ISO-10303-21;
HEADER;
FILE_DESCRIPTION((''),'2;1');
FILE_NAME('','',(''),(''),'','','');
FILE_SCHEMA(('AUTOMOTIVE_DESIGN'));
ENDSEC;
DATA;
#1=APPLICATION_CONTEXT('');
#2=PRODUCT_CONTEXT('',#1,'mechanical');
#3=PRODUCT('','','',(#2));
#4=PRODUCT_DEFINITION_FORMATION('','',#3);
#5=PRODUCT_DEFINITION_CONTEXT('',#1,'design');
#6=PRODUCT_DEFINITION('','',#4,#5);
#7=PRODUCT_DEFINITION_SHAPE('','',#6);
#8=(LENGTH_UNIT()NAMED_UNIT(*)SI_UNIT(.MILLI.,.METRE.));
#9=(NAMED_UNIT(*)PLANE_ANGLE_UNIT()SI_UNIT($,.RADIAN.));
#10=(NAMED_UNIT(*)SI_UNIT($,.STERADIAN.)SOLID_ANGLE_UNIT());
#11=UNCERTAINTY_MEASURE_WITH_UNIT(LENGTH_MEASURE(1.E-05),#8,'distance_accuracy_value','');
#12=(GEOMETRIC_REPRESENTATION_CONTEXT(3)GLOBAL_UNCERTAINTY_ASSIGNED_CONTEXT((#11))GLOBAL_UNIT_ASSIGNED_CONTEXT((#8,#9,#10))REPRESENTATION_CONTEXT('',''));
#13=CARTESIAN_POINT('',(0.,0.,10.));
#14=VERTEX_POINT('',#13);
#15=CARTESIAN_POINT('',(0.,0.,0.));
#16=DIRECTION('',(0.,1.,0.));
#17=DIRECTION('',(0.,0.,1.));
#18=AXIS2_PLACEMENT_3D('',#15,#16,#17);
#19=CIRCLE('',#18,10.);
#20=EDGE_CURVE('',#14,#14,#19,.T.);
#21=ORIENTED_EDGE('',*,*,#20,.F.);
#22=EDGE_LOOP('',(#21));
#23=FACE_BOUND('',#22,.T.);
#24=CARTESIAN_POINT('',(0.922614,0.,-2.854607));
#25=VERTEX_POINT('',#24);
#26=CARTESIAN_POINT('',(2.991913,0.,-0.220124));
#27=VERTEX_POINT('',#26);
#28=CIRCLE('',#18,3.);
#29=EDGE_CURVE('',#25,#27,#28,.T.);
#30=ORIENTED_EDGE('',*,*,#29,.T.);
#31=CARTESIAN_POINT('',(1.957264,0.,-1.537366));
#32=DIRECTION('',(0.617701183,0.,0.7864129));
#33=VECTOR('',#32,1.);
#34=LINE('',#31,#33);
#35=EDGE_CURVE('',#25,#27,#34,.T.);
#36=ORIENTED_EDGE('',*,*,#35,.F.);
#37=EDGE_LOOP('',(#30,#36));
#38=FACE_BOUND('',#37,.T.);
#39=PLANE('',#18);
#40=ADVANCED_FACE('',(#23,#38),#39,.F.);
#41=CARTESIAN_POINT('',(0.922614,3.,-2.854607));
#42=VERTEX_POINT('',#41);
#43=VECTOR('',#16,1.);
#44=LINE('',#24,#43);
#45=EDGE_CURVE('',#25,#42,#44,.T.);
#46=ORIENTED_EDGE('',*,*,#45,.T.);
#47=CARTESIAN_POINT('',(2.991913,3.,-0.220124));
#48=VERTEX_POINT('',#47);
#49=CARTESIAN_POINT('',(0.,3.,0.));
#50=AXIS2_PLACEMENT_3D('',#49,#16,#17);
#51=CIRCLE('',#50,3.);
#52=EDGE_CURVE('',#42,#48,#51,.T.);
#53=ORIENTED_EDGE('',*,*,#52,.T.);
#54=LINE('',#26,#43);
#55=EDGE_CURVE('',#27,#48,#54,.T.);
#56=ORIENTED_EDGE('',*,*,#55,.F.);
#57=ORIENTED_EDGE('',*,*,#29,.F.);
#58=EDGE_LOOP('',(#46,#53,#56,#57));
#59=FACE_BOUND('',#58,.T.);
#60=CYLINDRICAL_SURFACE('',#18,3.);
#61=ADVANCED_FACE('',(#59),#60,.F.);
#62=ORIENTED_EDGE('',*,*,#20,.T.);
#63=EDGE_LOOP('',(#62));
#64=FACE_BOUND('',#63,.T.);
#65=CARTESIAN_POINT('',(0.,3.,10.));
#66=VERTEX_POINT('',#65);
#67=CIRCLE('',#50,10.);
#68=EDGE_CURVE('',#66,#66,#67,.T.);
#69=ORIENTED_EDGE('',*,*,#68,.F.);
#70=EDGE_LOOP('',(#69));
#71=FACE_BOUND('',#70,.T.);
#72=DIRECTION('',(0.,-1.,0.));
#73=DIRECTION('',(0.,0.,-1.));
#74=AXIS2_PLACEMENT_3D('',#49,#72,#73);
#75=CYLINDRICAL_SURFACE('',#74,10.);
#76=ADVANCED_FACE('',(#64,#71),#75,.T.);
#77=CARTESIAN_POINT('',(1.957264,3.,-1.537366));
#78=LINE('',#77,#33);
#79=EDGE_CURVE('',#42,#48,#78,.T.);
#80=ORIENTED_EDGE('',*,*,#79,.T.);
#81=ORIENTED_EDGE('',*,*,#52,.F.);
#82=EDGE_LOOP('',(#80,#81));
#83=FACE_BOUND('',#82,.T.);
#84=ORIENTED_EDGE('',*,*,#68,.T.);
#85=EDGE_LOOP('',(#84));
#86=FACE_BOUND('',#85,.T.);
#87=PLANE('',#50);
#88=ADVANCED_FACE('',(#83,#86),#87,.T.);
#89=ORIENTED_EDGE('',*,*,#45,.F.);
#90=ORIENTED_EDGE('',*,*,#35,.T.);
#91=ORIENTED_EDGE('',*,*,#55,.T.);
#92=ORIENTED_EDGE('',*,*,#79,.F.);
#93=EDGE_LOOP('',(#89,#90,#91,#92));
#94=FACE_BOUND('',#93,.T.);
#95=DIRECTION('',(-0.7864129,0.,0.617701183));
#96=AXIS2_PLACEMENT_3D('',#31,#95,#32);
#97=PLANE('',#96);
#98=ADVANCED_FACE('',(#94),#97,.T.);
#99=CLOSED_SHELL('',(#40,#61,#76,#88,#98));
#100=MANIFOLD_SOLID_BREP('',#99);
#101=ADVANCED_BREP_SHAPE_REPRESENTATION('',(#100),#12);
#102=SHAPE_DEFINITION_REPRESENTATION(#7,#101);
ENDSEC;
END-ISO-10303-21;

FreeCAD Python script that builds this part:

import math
import FreeCAD as App
import Part
import Sketcher
from FreeCAD import Vector

doc = App.newDocument("Part")
body = doc.addObject("PartDesign::Body", "Body")

sketch1 = doc.addObject("Sketcher::SketchObject", "Sketch")
body.addObject(sketch1)
sketch1.AttachmentSupport = (doc.XZ_Plane, [""])
sketch1.MapMode = "FlatFace"
sketch1.addGeometry(Part.Circle(Vector(0, 0, 0), Vector(0, 0, 1), 10), False)
sketch1.addConstraint([
    Sketcher.Constraint("Coincident", 0, 3, -1, 1),
    Sketcher.Constraint("Diameter", 0, 20.0),
])
pad1 = doc.addObject("PartDesign::Pad", "Pad")
body.addObject(pad1)
pad1.Profile = sketch1
pad1.Length = 3
pad1.Reversed = True

sketch2 = doc.addObject("Sketcher::SketchObject", "Sketch001")
body.addObject(sketch2)
sketch2.AttachmentSupport = (doc.XZ_Plane, [""])
sketch2.MapMode = "FlatFace"
sketch2.AttachmentOffset = App.Placement(Vector(0, 0, -3), App.Rotation())
sketch2.addGeometry([
    Part.LineSegment(Vector(2.99, -0.22, 0), Vector(0.92, -2.85, 0)),
    Part.ArcOfCircle(Part.Circle(Vector(0, 0, 0), Vector(0, 0, 1), 3), math.radians(0), math.radians(288)),
    Part.ArcOfCircle(Part.Circle(Vector(0, 0, 0), Vector(0, 0, 1), 3), math.radians(-4.21), math.radians(0)),
], False)
sketch2.addConstraint([
    Sketcher.Constraint("Coincident", 0, 2, 1, 2),
    Sketcher.Constraint("Tangent", 1, 1, 2, 2),
    Sketcher.Constraint("Coincident", 2, 1, 0, 1),
    Sketcher.Constraint("Coincident", 1, 3, -1, 1),
    Sketcher.Constraint("Equal", 1, 2),
    Sketcher.Constraint("PointOnObject", 1, 1, -1),
    Sketcher.Constraint("Radius", 1, 3.0),
    Sketcher.Constraint("Distance", 0, 3.35),
    Sketcher.Constraint("DistanceX", 0, 2, 2, 1, 2.069299),
])
pocket1 = doc.addObject("PartDesign::Pocket", "Pocket")
body.addObject(pocket1)
pocket1.Profile = sketch2
pocket1.Length = 3
pocket1.Reversed = True

doc.recompute()
